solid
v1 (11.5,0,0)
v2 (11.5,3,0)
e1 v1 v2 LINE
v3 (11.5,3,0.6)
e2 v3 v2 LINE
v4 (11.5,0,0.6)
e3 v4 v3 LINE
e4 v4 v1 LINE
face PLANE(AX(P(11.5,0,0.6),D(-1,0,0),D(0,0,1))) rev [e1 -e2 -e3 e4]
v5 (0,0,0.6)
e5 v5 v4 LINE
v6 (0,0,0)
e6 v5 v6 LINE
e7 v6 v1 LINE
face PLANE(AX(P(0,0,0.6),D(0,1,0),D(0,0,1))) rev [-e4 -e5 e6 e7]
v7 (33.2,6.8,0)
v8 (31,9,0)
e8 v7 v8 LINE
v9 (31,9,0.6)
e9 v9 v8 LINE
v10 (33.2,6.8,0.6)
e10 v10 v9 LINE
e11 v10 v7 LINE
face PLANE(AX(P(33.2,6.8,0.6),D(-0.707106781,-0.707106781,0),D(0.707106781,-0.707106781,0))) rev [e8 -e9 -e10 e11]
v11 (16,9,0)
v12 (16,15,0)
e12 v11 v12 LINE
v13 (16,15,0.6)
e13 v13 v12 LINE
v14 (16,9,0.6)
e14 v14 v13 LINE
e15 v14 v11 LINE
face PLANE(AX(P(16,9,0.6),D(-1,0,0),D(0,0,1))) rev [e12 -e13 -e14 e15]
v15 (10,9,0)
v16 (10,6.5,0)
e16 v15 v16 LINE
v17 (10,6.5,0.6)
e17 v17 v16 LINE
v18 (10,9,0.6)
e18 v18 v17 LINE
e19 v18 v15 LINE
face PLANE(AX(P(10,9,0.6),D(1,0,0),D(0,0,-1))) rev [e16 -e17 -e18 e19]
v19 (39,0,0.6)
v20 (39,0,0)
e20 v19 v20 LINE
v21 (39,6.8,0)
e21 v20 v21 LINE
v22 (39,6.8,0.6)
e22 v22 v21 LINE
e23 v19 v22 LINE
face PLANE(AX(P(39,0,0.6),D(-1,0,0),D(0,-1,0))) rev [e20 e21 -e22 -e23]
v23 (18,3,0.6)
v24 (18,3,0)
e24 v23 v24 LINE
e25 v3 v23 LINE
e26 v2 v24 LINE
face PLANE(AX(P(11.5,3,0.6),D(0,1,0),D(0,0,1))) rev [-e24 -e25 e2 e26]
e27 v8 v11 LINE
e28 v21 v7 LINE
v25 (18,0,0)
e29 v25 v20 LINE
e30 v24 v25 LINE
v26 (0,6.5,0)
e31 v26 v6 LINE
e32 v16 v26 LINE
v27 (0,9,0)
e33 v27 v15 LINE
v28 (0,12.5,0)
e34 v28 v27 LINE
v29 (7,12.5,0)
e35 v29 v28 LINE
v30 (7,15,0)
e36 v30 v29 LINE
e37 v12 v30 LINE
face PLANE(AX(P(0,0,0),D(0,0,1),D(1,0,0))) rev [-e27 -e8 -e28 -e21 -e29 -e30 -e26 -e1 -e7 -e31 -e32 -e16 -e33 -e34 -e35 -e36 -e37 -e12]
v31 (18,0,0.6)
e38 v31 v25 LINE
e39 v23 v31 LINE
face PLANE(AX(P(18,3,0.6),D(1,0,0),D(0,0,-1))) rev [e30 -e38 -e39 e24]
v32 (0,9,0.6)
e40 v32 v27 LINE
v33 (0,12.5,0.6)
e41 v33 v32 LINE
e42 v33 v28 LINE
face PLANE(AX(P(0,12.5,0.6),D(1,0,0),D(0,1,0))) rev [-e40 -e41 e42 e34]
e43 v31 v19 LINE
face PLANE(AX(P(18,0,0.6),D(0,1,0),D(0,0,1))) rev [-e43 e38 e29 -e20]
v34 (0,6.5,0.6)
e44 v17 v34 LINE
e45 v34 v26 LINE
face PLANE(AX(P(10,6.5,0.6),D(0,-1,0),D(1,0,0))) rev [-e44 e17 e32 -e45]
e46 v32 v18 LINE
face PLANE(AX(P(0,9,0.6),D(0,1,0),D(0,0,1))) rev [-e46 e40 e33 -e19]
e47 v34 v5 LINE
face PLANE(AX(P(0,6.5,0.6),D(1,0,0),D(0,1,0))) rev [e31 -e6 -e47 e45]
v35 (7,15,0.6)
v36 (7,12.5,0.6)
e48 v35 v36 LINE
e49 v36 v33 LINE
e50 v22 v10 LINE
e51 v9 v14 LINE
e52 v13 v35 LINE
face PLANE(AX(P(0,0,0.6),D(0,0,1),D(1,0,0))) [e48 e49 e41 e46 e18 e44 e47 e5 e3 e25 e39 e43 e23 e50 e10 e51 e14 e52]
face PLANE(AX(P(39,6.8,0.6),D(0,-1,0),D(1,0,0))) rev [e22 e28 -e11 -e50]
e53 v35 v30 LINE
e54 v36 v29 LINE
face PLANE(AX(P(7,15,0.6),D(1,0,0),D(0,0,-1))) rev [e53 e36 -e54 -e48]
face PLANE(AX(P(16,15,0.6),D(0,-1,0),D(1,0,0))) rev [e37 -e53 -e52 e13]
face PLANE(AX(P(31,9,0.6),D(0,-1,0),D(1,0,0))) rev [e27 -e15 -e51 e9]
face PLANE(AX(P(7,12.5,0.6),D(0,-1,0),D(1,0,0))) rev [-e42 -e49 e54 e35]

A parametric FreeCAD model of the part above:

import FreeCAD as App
import Part
import Sketcher
from FreeCAD import Vector
Q = App.Units.Quantity


def add_polygon(sketch, points):
    """Adds a closed chain of lines whose ends are joined by coincident constraints."""
    first, n = sketch.GeometryCount, len(points)
    for a, b in zip(points, points[1:] + points[:1]):
        sketch.addGeometry(Part.LineSegment(App.Vector(*a, 0), App.Vector(*b, 0)), False)
    for i in range(n):
        sketch.addConstraint(Sketcher.Constraint("Coincident", first + i, 2, first + (i + 1) % n, 1))

doc = App.newDocument("Part")
body = doc.addObject("PartDesign::Body", "Body")

# Sketch on XY plane
sketch1 = body.newObject("Sketcher::SketchObject", "Sketch")
sketch1.AttachmentSupport = (doc.getObject("XY_Plane"), [""])
sketch1.MapMode = "FlatFace"
add_polygon(sketch1, [(0, 0), (11.5, 0), (11.5, 3), (18, 3), (18, 0), (39, 0), (39, 6.8), (33.2, 6.8), (31, 9), (16, 9), (16, 15), (7, 15), (7, 12.5), (0, 12.5), (0, 9), (10, 9), (10, 6.5), (0, 6.5)])  # lines 0-17
sketch1.addConstraint(Sketcher.Constraint("Horizontal", 0))
sketch1.addConstraint(Sketcher.Constraint("Vertical", 1))
sketch1.addConstraint(Sketcher.Constraint("Horizontal", 2))
sketch1.addConstraint(Sketcher.Constraint("Vertical", 3))
sketch1.addConstraint(Sketcher.Constraint("Horizontal", 4))
sketch1.addConstraint(Sketcher.Constraint("Vertical", 5))
sketch1.addConstraint(Sketcher.Constraint("Horizontal", 6))
sketch1.addConstraint(Sketcher.Constraint("Horizontal", 8))
sketch1.addConstraint(Sketcher.Constraint("Vertical", 9))
sketch1.addConstraint(Sketcher.Constraint("Horizontal", 10))
sketch1.addConstraint(Sketcher.Constraint("Vertical", 11))
sketch1.addConstraint(Sketcher.Constraint("Horizontal", 12))
sketch1.addConstraint(Sketcher.Constraint("Vertical", 13))
sketch1.addConstraint(Sketcher.Constraint("Horizontal", 14))
sketch1.addConstraint(Sketcher.Constraint("Vertical", 15))
sketch1.addConstraint(Sketcher.Constraint("Horizontal", 16))
sketch1.addConstraint(Sketcher.Constraint("Vertical", 17))
sketch1.addConstraint(Sketcher.Constraint("Coincident", 17, 2, -1, 1))
sketch1.addConstraint(Sketcher.Constraint("PointOnObject", 3, 2, -1))
sketch1.addConstraint(Sketcher.Constraint("PointOnObject", 12, 2, -2))
sketch1.addConstraint(Sketcher.Constraint("Horizontal", 8, 2, 13, 2))
sketch1.addConstraint(Sketcher.Constraint("Equal", 11, 15))
sketch1.addConstraint(Sketcher.Constraint("Equal", 2, 17))
sketch1.addConstraint(Sketcher.Constraint("DistanceX", 4, 1, 4, 2, Q("21 mm")))
sketch1.addConstraint(Sketcher.Constraint("DistanceX", 8, 2, 8, 1, Q("15 mm")))
sketch1.addConstraint(Sketcher.Constraint("DistanceX", 10, 2, 10, 1, Q("9 mm")))
sketch1.addConstraint(Sketcher.Constraint("DistanceX", 12, 2, 12, 1, Q("7 mm")))
sketch1.addConstraint(Sketcher.Constraint("DistanceX", 14, 1, 14, 2, Q("10 mm")))
sketch1.addConstraint(Sketcher.Constraint("DistanceY", 1, 1, 1, 2, Q("3 mm")))
sketch1.addConstraint(Sketcher.Constraint("DistanceY", 9, 1, 9, 2, Q("6 mm")))
sketch1.addConstraint(Sketcher.Constraint("Angle", 7, Q("135 deg")))
sketch1.addConstraint(Sketcher.Constraint("DistanceX", 0, 1, 0, 2, Q("11.5 mm")))
sketch1.addConstraint(Sketcher.Constraint("DistanceX", 2, 1, 2, 2, Q("6.5 mm")))
sketch1.addConstraint(Sketcher.Constraint("DistanceX", 6, 2, 6, 1, Q("5.8 mm")))
sketch1.addConstraint(Sketcher.Constraint("DistanceY", 5, 1, 5, 2, Q("6.8 mm")))
pad1 = body.newObject("PartDesign::Pad", "Pad")
pad1.Profile = sketch1
pad1.Length = 0.6

doc.recompute()
